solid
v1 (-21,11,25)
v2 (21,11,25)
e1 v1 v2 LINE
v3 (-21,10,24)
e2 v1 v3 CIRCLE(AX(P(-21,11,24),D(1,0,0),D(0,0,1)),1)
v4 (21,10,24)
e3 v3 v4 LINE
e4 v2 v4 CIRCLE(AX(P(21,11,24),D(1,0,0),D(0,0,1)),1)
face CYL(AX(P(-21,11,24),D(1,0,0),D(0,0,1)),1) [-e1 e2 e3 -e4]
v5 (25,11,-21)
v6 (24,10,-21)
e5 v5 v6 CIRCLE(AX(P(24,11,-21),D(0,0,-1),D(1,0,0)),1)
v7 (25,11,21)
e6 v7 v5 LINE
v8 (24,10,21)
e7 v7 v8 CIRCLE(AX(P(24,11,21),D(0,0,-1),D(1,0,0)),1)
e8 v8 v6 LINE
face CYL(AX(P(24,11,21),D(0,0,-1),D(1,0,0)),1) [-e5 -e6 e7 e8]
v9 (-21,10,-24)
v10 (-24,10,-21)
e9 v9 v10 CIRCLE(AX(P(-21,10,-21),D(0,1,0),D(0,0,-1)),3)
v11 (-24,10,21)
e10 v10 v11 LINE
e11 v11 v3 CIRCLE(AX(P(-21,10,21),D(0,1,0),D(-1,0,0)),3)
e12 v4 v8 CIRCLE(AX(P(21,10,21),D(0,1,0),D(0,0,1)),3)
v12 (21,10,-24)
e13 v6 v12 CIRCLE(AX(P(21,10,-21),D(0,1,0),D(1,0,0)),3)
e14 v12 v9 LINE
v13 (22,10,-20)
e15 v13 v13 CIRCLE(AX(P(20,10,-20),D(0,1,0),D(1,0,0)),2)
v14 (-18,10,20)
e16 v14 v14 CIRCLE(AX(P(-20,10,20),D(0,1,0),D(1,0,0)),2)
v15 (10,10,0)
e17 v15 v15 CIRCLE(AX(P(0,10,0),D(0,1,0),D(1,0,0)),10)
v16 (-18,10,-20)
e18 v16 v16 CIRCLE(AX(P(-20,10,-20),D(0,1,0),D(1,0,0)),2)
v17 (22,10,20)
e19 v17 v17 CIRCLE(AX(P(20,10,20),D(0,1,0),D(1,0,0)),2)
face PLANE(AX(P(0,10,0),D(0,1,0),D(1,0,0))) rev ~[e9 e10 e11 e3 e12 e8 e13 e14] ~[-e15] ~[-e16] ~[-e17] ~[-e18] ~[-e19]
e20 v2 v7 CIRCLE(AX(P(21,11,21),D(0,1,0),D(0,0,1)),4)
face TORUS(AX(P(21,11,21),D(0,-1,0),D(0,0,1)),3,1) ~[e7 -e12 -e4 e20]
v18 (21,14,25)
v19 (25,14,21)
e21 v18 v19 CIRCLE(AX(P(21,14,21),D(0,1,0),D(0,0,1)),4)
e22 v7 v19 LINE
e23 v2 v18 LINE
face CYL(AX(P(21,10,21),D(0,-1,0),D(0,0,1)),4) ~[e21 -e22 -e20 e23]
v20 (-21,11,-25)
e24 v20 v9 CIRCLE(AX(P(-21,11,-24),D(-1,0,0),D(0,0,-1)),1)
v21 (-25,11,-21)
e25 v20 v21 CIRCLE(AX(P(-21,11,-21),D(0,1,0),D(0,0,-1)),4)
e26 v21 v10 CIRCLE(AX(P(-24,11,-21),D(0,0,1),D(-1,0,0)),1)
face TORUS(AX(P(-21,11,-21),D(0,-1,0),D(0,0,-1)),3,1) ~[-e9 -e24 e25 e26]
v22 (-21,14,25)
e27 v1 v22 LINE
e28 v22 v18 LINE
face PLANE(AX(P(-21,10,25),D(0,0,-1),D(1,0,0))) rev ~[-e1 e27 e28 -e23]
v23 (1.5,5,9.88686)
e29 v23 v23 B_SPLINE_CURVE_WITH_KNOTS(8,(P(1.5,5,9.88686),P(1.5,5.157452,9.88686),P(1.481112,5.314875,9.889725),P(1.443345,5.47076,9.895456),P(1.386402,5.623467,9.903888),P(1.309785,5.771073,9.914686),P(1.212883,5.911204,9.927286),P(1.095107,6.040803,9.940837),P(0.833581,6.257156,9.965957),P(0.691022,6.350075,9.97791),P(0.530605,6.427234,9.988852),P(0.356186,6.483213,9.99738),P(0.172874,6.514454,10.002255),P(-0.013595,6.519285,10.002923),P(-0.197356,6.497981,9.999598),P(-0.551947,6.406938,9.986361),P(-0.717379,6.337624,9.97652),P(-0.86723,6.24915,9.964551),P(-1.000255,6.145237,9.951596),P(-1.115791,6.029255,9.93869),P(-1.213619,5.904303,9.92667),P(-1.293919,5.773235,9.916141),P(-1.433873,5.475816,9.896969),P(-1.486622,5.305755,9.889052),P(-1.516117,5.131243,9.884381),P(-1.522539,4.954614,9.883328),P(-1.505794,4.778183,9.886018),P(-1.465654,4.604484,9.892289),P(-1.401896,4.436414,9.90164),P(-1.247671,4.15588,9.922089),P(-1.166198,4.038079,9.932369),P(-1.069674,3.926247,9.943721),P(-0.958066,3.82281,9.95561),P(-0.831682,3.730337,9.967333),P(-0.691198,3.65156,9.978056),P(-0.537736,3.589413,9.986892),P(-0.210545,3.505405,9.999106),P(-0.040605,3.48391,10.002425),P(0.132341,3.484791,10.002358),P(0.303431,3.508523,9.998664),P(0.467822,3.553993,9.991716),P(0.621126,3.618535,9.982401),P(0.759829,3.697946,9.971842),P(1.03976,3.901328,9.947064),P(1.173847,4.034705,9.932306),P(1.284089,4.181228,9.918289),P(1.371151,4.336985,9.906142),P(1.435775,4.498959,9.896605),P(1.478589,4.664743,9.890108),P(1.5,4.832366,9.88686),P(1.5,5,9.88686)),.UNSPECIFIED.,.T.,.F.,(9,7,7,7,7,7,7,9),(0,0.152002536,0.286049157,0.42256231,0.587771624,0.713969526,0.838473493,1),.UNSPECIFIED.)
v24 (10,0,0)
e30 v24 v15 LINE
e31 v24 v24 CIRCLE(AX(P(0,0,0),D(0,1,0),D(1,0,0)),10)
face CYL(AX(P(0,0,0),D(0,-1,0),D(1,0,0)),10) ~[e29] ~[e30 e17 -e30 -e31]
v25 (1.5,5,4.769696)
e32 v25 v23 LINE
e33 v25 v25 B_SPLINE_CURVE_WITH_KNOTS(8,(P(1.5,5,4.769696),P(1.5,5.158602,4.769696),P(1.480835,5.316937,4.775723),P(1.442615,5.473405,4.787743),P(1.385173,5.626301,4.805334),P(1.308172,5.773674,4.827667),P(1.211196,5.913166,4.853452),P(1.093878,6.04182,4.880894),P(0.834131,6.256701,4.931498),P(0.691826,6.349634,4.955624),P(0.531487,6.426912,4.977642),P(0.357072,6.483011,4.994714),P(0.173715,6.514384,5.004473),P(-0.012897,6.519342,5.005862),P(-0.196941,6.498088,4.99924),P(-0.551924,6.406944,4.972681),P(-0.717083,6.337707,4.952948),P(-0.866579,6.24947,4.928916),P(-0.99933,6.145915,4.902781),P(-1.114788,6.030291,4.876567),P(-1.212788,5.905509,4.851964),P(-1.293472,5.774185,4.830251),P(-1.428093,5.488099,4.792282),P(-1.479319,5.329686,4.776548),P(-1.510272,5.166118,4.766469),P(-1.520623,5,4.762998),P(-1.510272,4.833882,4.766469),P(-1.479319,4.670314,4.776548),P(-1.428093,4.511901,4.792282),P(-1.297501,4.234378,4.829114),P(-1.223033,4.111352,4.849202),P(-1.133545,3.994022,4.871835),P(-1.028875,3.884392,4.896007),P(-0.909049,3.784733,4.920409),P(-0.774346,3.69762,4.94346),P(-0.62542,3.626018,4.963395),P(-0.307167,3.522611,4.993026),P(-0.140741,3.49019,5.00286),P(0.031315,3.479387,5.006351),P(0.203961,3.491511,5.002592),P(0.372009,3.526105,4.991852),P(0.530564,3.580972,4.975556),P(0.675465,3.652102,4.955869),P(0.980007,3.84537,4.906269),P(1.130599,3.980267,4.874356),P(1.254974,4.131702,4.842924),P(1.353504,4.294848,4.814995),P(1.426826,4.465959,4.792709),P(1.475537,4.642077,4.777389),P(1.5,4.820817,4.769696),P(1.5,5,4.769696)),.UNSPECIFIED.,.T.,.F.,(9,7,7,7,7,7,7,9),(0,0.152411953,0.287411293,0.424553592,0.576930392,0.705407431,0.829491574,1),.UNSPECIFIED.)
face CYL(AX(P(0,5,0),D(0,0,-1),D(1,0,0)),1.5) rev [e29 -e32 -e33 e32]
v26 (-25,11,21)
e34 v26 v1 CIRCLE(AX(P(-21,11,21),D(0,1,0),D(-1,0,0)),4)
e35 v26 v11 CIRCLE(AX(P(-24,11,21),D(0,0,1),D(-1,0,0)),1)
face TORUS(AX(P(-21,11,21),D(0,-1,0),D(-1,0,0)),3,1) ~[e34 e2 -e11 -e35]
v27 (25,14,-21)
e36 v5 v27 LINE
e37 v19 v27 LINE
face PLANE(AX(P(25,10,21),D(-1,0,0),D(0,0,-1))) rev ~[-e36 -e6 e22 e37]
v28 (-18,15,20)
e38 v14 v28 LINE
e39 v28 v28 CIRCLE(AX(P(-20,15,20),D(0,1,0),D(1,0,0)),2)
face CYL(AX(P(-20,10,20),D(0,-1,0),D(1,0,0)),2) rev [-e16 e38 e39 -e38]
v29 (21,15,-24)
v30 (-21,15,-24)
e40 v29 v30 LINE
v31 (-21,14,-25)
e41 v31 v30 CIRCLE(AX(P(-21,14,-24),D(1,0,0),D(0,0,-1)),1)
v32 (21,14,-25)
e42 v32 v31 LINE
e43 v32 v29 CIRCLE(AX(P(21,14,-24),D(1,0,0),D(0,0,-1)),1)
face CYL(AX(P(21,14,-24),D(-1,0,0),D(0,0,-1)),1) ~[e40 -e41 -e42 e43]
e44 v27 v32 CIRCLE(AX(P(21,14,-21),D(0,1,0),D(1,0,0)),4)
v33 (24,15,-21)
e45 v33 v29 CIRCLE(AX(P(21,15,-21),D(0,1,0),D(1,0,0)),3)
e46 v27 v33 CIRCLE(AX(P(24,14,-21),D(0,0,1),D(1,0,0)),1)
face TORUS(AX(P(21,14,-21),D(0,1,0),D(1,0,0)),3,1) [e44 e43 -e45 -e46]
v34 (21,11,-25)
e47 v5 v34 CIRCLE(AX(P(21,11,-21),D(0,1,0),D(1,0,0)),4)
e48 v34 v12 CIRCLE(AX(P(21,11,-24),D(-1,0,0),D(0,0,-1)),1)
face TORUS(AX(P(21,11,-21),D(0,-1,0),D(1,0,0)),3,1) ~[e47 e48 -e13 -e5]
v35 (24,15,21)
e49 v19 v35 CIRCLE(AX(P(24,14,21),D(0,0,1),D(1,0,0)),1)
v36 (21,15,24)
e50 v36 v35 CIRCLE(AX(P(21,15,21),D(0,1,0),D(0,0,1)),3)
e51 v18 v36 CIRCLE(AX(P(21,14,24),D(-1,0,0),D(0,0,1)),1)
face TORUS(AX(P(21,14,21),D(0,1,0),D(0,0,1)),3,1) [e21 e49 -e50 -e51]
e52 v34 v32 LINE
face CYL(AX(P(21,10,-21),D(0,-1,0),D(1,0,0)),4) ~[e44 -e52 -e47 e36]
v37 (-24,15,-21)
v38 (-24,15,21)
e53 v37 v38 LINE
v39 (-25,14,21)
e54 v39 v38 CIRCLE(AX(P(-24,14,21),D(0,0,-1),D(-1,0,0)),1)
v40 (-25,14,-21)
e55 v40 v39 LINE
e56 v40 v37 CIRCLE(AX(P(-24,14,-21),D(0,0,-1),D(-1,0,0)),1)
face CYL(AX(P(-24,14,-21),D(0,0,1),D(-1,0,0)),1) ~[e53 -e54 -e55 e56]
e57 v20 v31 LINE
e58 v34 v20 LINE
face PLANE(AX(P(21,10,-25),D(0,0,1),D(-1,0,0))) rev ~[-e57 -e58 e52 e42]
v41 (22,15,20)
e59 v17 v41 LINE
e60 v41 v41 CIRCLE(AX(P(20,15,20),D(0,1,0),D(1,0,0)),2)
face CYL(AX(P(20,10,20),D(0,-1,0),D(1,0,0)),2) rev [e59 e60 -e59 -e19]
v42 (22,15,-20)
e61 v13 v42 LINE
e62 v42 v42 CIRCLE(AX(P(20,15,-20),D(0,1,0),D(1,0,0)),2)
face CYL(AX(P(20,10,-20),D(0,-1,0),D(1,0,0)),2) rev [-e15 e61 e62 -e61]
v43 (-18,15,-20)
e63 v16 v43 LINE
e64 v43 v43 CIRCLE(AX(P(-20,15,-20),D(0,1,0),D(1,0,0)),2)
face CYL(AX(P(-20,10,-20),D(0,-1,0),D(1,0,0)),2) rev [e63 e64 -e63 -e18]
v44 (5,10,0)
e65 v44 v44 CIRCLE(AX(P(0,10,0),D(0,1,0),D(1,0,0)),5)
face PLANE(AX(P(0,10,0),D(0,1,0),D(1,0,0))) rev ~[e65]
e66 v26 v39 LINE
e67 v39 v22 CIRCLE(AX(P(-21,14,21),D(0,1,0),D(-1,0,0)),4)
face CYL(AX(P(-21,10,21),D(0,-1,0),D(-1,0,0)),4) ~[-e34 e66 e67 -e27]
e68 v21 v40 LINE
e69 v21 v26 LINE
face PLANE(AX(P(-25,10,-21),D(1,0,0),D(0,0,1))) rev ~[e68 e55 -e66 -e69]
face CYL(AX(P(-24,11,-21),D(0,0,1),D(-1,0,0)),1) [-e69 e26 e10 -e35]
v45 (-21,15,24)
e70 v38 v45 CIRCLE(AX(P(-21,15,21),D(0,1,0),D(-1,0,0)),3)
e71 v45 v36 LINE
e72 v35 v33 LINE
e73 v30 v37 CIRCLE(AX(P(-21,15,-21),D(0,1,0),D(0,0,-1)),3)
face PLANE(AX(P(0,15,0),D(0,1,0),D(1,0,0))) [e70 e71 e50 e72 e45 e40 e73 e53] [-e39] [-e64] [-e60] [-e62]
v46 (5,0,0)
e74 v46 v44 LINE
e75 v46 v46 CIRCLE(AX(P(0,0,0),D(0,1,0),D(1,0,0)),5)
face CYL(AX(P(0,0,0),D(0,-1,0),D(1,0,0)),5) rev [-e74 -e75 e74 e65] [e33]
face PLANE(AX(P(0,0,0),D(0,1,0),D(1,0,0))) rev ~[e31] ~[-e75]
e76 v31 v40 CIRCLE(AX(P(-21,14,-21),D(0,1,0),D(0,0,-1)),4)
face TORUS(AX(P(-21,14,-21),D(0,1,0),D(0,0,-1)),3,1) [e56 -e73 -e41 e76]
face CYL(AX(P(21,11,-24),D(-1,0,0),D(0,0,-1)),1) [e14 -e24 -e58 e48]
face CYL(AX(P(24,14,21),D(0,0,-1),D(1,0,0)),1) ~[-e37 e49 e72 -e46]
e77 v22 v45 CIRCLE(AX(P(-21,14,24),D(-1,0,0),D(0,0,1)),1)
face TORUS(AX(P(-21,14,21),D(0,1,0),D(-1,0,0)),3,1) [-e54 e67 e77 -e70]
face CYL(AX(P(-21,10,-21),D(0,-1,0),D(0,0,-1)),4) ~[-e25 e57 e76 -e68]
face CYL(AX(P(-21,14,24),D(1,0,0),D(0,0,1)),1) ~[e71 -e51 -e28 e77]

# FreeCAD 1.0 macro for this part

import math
import FreeCAD as App
import Part
import Sketcher
from FreeCAD import Vector


def edges_at(feature, points):
    """Names of the edges that pass closest to the given points."""
    edges = feature.Shape.Edges
    near = lambda p: min(range(len(edges)), key=lambda i: edges[i].distToShape(Part.Vertex(*p))[0])
    return sorted({f"Edge{near(p) + 1}" for p in points})

doc = App.newDocument("Part")
params = doc.addObject("Spreadsheet::Sheet", "Params")
for row, (alias, value) in enumerate([
    ("sketch1_diameter", "20 mm"),
    ("sketch1_diameter2", "10 mm"),
    ("pad1_length", "10 mm"),
    ("sketch2_diameter", "4 mm"),
    ("sketch2_radius", "4 mm"),
    ("sketch2_width", "42 mm"),
    ("pad2_length", "5 mm"),
    ("sketch3_diameter", "3 mm"),
    ("fillet_radius", "1 mm"),
], start=1):
    params.set(f"A{row}", alias)
    params.set(f"B{row}", "=" + value)
    params.setAlias(f"B{row}", alias)

body = doc.addObject("PartDesign::Body", "Body")

sketch1 = body.newObject("Sketcher::SketchObject", "Sketch")
sketch1.AttachmentSupport = (doc.getObject("XZ_Plane"), [""])
sketch1.MapMode = "FlatFace"
sketch1.addGeometry([
    Part.Circle(Vector(0, 0, 0), Vector(0, 0, 1), 10),
    Part.Circle(Vector(0, 0, 0), Vector(0, 0, 1), 5),
], False)
sketch1.addConstraint([
    Sketcher.Constraint("Coincident", 0, 3, -1, 1),
    Sketcher.Constraint("Coincident", 1, 3, -1, 1),
    Sketcher.Constraint("Diameter", 0, 20.0),
    Sketcher.Constraint("Diameter", 1, 10.0),
])
sketch1.setExpression("Constraints[2]", "Params.sketch1_diameter")
sketch1.setExpression("Constraints[3]", "Params.sketch1_diameter2")
pad1 = body.newObject("PartDesign::Pad", "Pad")
pad1.Profile = sketch1
pad1.setExpression("Length", "Params.pad1_length")
pad1.Reversed = True

sketch2 = body.newObject("Sketcher::SketchObject", "Sketch001")
sketch2.AttachmentSupport = (doc.getObject("XZ_Plane"), [""])
sketch2.MapMode = "FlatFace"
sketch2.AttachmentOffset = App.Placement(Vector(0, 0, -10), App.Rotation())
sketch2.addGeometry([
    Part.LineSegment(Vector(-21, 25, 0), Vector(21, 25, 0)),
    Part.ArcOfCircle(Part.Circle(Vector(21, 21, 0), Vector(0, 0, 1), 4), math.radians(0), math.radians(90)),
    Part.LineSegment(Vector(25, 21, 0), Vector(25, -21, 0)),
    Part.ArcOfCircle(Part.Circle(Vector(21, -21, 0), Vector(0, 0, 1), 4), math.radians(-90), math.radians(0)),
    Part.LineSegment(Vector(21, -25, 0), Vector(-21, -25, 0)),
    Part.ArcOfCircle(Part.Circle(Vector(-21, -21, 0), Vector(0, 0, 1), 4), math.radians(180), math.radians(270)),
    Part.LineSegment(Vector(-25, -21, 0), Vector(-25, 21, 0)),
    Part.ArcOfCircle(Part.Circle(Vector(-21, 21, 0), Vector(0, 0, 1), 4), math.radians(90), math.radians(180)),
    Part.Circle(Vector(-20, 20, 0), Vector(0, 0, 1), 2),
    Part.Circle(Vector(20, 20, 0), Vector(0, 0, 1), 2),
    Part.Circle(Vector(-20, -20, 0), Vector(0, 0, 1), 2),
    Part.Circle(Vector(20, -20, 0), Vector(0, 0, 1), 2),
], False)
sketch2.addConstraint([
    Sketcher.Constraint("Tangent", 0, 2, 1, 2),
    Sketcher.Constraint("Tangent", 1, 1, 2, 1),
    Sketcher.Constraint("Tangent", 2, 2, 3, 2),
    Sketcher.Constraint("Tangent", 3, 1, 4, 1),
    Sketcher.Constraint("Tangent", 4, 2, 5, 2),
    Sketcher.Constraint("Tangent", 5, 1, 6, 1),
    Sketcher.Constraint("Tangent", 6, 2, 7, 2),
    Sketcher.Constraint("Tangent", 7, 1, 0, 1),
    Sketcher.Constraint("Horizontal", 0),
    Sketcher.Constraint("Vertical", 2),
    Sketcher.Constraint("Horizontal", 4),
    Sketcher.Constraint("Vertical", 6),
    Sketcher.Constraint("Equal", 1, 3),
    Sketcher.Constraint("Equal", 3, 5),
    Sketcher.Constraint("Equal", 5, 7),
    Sketcher.Constraint("Equal", 8, 9),
    Sketcher.Constraint("Equal", 9, 10),
    Sketcher.Constraint("Equal", 10, 11),
    Sketcher.Constraint("Symmetric", 1, 3, 5, 3, -1, 1),
    Sketcher.Constraint("Symmetric", 9, 3, 10, 3, -1, 1),
    Sketcher.Constraint("Symmetric", 8, 3, 11, 3, -1, 1),
    Sketcher.Constraint("Symmetric", 8, 3, 9, 3, -2),
    Sketcher.Constraint("Equal", 4, 2),
    Sketcher.Constraint("Diameter", 8, 4.0),
    Sketcher.Constraint("Radius", 1, 4.0),
    Sketcher.Constraint("DistanceX", 0, 1, 0, 2, 42.0),
    Sketcher.Constraint("DistanceX", 8, 3, -1, 1, 20.0),
    Sketcher.Constraint("DistanceY", -1, 1, 8, 3, 20.0),
])
sketch2.setExpression("Constraints[23]", "Params.sketch2_diameter")
sketch2.setExpression("Constraints[24]", "Params.sketch2_radius")
sketch2.setExpression("Constraints[25]", "Params.sketch2_width")
pad2 = body.newObject("PartDesign::Pad", "Pad001")
pad2.Profile = sketch2
pad2.setExpression("Length", "Params.pad2_length")
pad2.Reversed = True

sketch3 = body.newObject("Sketcher::SketchObject", "Sketch002")
sketch3.AttachmentSupport = (doc.getObject("XY_Plane"), [""])
sketch3.MapMode = "FlatFace"
sketch3.addGeometry(Part.Circle(Vector(0, 5, 0), Vector(0, 0, 1), 1.5), False)
sketch3.addConstraint([
    Sketcher.Constraint("PointOnObject", 0, 3, -2),
    Sketcher.Constraint("Diameter", 0, 3.0),
    Sketcher.Constraint("DistanceY", -1, 1, 0, 3, 5.0),
])
sketch3.setExpression("Constraints[1]", "Params.sketch3_diameter")
pocket1 = body.newObject("PartDesign::Pocket", "Pocket")
pocket1.Profile = sketch3
pocket1.Type = "ThroughAll"
pocket1.Reversed = True
doc.recompute()

fillet = body.newObject("PartDesign::Fillet", "Fillet")
fillet.Base = (pocket1, edges_at(pocket1, [
    (0, 15, 25),
    (23.828, 15, 23.828),
    (25, 15, 0),
    (23.828, 15, -23.828),
    (0, 15, -25),
    (-23.828, 15, -23.828),
    (-25, 15, 0),
    (-23.828, 10, 23.828),
    (0, 10, 25),
    (23.828, 10, 23.828),
    (25, 10, 0),
    (23.828, 10, -23.828),
    (0, 10, -25),
    (-23.828, 10, -23.828),
    (-25, 10, 0),
    (-23.828, 15, 23.828),
]))
fillet.setExpression("Radius", "Params.fillet_radius")

doc.recompute()
